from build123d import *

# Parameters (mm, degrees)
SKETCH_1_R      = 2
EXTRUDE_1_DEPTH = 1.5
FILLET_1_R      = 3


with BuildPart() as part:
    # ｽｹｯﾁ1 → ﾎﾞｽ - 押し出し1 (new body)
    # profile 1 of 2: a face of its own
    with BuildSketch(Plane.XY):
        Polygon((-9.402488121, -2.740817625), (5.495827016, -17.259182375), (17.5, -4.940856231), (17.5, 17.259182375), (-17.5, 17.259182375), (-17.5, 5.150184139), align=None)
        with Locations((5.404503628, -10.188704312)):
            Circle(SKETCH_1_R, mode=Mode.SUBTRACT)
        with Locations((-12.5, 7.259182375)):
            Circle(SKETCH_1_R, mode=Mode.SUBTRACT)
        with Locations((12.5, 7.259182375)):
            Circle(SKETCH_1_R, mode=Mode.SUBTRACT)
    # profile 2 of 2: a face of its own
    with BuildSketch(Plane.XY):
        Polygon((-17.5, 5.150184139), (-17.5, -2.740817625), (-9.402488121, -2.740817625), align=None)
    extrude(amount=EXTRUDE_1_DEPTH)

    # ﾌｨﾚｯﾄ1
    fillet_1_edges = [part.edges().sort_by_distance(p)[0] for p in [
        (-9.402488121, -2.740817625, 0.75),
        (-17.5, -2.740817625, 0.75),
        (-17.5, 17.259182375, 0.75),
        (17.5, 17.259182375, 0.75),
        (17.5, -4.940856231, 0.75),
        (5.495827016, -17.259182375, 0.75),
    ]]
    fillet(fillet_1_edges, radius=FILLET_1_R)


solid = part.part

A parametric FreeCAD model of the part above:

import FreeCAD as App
import Part
import Sketcher

V = App.Vector
Q = App.Units.Quantity


def edges_at(feature, points):
    """Names of the edges that pass closest to the given points."""
    edges = feature.Shape.Edges
    near = lambda p: min(range(len(edges)), key=lambda i: edges[i].distToShape(Part.Vertex(*p))[0])
    return sorted({f"Edge{near(p) + 1}" for p in points})


def add_polygon(sketch, points):
    """Adds a closed chain of lines whose ends are joined by coincident constraints."""
    first, n = sketch.GeometryCount, len(points)
    for a, b in zip(points, points[1:] + points[:1]):
        sketch.addGeometry(Part.LineSegment(App.Vector(*a, 0), App.Vector(*b, 0)), False)
    for i in range(n):
        sketch.addConstraint(Sketcher.Constraint("Coincident", first + i, 2, first + (i + 1) % n, 1))

doc = App.newDocument("Part")
body = doc.addObject("PartDesign::Body", "Body")

sketch1 = body.newObject("Sketcher::SketchObject", "Sketch")
sketch1.AttachmentSupport = (doc.getObject("XY_Plane"), [""])
sketch1.MapMode = "FlatFace"
add_polygon(sketch1, [(5.495827, -17.259182), (17.5, -4.940856), (17.5, 17.259182), (-17.5, 17.259182), (-17.5, -2.740818), (-9.402488, -2.740818)])
sketch1.addGeometry(Part.Circle(V(5.404504, -10.188704, 0), V(0, 0, 1), 2), False)
sketch1.addGeometry(Part.Circle(V(-12.5, 7.259182, 0), V(0, 0, 1), 2), False)
sketch1.addGeometry(Part.Circle(V(12.5, 7.259182, 0), V(0, 0, 1), 2), False)
sketch1.addConstraint([
    Sketcher.Constraint("Vertical", 1),
    Sketcher.Constraint("Horizontal", 2),
    Sketcher.Constraint("Vertical", 3),
    Sketcher.Constraint("Horizontal", 4),
    Sketcher.Constraint("Equal", 6, 7),
    Sketcher.Constraint("Equal", 7, 8),
    Sketcher.Constraint("Symmetric", 7, 3, 8, 3, -2),
    Sketcher.Constraint("Perpendicular", 0, 5),
    Sketcher.Constraint("Diameter", 6, 4.0),
    Sketcher.Constraint("DistanceX", 2, 2, 2, 1, 35.0),
    Sketcher.Constraint("DistanceY", 3, 2, 3, 1, 20.0),
    Sketcher.Constraint("DistanceX", 7, 3, 8, 3, 25.0),
    Sketcher.Constraint("DistanceX", 8, 3, 0, 2, 5.0),
    Sketcher.Constraint("DistanceY", 8, 3, 1, 2, 10.0),
    Sketcher.Constraint("Angle", 0, Q("45.74 deg")),
    Sketcher.Constraint("DistanceX", 4, 1, 4, 2, 8.097512),
    Sketcher.Constraint("DistanceY", 1, 1, 1, 2, 22.200039),
    Sketcher.Constraint("DistanceY", 6, 3, 0, 2, 5.247848),
    Sketcher.Constraint("DistanceX", 4, 2, 6, 3, 14.806992),
    Sketcher.Constraint("DistanceY", 6, 3, -1, 1, 10.188704),
])
pad1 = body.newObject("PartDesign::Pad", "Pad")
pad1.Profile = sketch1
pad1.Length = 1.5
doc.recompute()

fillet = body.newObject("PartDesign::Fillet", "Fillet")
fillet.Base = (pad1, edges_at(pad1, [
    (-9.402, -2.741, 0.75),
    (-17.5, -2.741, 0.75),
    (-17.5, 17.259, 0.75),
    (17.5, 17.259, 0.75),
    (17.5, -4.941, 0.75),
    (5.496, -17.259, 0.75),
]))
fillet.Radius = 3

doc.recompute()
